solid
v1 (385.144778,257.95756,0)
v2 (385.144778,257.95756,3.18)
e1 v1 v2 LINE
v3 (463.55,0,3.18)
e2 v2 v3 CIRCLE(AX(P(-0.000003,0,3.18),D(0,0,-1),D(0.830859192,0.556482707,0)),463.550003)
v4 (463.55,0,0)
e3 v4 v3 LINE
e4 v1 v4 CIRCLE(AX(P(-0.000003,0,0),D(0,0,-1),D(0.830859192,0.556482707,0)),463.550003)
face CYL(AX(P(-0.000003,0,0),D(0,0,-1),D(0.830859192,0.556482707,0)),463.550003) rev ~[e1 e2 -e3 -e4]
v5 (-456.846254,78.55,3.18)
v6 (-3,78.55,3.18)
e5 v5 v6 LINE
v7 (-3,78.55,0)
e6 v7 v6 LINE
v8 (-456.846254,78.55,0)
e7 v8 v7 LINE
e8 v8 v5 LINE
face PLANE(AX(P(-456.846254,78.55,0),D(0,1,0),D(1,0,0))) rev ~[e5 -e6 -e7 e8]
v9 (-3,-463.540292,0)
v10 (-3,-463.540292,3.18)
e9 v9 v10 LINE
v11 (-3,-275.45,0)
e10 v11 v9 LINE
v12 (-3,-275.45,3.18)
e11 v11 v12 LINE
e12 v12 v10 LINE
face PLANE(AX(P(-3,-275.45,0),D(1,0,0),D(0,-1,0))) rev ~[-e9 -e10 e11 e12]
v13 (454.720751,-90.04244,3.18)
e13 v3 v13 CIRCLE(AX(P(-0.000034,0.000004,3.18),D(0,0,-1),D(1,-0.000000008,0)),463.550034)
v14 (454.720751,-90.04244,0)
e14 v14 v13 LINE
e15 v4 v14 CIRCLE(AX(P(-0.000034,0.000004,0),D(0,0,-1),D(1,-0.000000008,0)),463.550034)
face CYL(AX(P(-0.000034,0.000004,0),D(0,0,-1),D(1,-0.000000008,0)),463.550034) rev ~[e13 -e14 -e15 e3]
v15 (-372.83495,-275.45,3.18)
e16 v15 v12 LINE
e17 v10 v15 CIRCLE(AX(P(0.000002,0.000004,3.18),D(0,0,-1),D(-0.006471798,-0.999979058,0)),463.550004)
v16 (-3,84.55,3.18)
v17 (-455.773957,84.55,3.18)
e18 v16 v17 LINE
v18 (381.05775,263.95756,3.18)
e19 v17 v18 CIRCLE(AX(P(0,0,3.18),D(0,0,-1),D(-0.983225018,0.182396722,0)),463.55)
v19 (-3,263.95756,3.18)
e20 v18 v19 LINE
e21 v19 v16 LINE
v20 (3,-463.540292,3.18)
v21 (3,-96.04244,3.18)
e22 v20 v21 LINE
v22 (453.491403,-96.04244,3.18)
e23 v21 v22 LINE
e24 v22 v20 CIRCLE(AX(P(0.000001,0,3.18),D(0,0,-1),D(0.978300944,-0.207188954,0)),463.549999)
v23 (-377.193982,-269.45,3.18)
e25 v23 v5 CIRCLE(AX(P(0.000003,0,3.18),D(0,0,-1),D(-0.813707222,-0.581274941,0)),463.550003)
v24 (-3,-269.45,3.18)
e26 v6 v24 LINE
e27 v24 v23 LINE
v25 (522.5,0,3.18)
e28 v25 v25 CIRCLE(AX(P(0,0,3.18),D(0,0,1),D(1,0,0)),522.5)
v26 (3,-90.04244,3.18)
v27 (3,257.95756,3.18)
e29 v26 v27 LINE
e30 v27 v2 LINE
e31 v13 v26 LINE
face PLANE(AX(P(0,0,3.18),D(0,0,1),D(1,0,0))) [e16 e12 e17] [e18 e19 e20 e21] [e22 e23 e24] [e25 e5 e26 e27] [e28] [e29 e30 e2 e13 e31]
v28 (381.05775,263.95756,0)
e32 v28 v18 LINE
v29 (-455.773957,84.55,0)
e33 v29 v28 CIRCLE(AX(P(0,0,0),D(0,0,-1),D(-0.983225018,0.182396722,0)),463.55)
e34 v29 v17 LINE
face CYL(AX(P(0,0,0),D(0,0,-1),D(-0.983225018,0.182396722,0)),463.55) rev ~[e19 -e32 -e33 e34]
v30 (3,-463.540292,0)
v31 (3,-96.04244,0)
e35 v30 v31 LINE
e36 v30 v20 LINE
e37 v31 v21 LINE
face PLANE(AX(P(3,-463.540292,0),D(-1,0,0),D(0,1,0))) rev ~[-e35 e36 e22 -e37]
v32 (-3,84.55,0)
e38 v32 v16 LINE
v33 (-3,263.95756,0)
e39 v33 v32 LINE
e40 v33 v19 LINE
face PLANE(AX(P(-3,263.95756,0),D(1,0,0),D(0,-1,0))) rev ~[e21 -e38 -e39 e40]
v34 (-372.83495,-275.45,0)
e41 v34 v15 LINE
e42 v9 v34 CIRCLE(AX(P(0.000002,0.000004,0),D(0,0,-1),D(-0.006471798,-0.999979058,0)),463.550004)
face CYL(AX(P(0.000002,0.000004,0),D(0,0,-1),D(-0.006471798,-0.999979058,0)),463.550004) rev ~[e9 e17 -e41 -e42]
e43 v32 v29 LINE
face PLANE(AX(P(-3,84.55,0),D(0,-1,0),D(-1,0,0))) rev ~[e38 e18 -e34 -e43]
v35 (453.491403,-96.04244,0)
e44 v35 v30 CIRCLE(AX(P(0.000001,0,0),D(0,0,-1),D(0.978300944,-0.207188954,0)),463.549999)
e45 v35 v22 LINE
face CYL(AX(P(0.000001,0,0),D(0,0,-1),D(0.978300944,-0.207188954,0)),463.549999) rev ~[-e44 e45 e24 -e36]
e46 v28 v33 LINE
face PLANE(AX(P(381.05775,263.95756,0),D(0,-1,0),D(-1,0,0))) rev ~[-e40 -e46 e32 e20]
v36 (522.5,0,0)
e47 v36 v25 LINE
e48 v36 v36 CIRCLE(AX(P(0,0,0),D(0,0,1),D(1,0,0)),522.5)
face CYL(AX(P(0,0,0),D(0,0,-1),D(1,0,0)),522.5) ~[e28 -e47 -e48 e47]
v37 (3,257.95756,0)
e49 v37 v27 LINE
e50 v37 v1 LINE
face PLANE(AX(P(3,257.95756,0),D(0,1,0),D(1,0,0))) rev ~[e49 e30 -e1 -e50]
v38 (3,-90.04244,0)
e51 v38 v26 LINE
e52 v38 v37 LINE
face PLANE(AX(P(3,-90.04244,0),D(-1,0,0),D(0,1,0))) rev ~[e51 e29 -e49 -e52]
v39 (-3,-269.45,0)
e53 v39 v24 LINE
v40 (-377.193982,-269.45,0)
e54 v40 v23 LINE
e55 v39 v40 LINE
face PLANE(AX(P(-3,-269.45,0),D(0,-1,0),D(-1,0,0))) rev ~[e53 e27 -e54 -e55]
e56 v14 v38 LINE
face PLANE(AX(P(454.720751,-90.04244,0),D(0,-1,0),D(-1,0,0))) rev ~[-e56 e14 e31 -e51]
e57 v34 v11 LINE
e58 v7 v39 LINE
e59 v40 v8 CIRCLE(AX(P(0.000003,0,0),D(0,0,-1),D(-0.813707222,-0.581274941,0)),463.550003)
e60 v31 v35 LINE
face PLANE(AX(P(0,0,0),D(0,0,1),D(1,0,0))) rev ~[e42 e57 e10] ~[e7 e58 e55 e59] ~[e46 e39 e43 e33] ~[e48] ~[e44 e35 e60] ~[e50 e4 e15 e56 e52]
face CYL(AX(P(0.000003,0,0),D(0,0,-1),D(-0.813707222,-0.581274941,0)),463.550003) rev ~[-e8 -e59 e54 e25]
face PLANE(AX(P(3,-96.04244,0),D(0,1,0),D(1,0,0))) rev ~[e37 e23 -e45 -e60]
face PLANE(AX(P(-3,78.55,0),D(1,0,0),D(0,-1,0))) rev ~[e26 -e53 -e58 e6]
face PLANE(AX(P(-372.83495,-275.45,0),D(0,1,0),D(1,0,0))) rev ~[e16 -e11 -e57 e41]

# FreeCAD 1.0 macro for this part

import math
import FreeCAD as App
import Part
import Sketcher
Q = App.Units.Quantity

doc = App.newDocument("Part")
params = doc.addObject("Spreadsheet::Sheet", "Params")
for row, (alias, value) in enumerate([
    ("sketch1_radius", "18.2500001 in"),
    ("sketch1_radius2", "18.25 in"),
    ("sketch1_radius3", "18.2500002 in"),
    ("sketch1_radius4", "18.2500001 in"),
    ("sketch1_radius5", "18.25 in"),
    ("pad1_length", "3.18 mm"),
], start=1):
    params.set(f"A{row}", alias)
    params.set(f"B{row}", "=" + value)
    params.setAlias(f"B{row}", alias)

body = doc.addObject("PartDesign::Body", "Body")

# Sketch on XY plane
sketch1 = doc.addObject("Sketcher::SketchObject", "Sketch")
body.addObject(sketch1)
sketch1.AttachmentSupport = (doc.XY_Plane, [""])
sketch1.MapMode = "FlatFace"
sketch1.addGeometry(Part.Circle(App.Vector(0, 0, 0), App.Vector(0, 0, 1), 522.5), False)
sketch1.addGeometry(Part.ArcOfCircle(Part.Circle(App.Vector(-0.000003, 0, 0), App.Vector(0, 0, 1), 463.550003), math.radians(0), math.radians(33.812901)), False)
sketch1.addGeometry(Part.ArcOfCircle(Part.Circle(App.Vector(-0.000034, 0.000004, 0), App.Vector(0, 0, 1), 463.550034), math.radians(-11.200643), math.radians(0)), False)
sketch1.addGeometry(Part.LineSegment(App.Vector(454.720751, -90.04244, 0), App.Vector(3, -90.04244, 0)), False)
sketch1.addGeometry(Part.LineSegment(App.Vector(3, -90.04244, 0), App.Vector(3, 257.95756, 0)), False)
sketch1.addGeometry(Part.LineSegment(App.Vector(3, 257.95756, 0), App.Vector(385.144778, 257.95756, 0)), False)
sketch1.addGeometry(Part.ArcOfCircle(Part.Circle(App.Vector(0.000001, 0, 0), App.Vector(0, 0, 1), 463.549999), math.radians(-89.629191), math.radians(-11.957668)), False)
sketch1.addGeometry(Part.LineSegment(App.Vector(3, -463.540292, 0), App.Vector(3, -96.04244, 0)), False)
sketch1.addGeometry(Part.LineSegment(App.Vector(3, -96.04244, 0), App.Vector(453.491403, -96.04244, 0)), False)
sketch1.addGeometry(Part.ArcOfCircle(Part.Circle(App.Vector(0.000002, 0.000004, 0), App.Vector(0, 0, 1), 463.550004), math.radians(-143.543057), math.radians(-90.370809)), False)
sketch1.addGeometry(Part.LineSegment(App.Vector(-372.83495, -275.45, 0), App.Vector(-3, -275.45, 0)), False)
sketch1.addGeometry(Part.LineSegment(App.Vector(-3, -275.45, 0), App.Vector(-3, -463.540292, 0)), False)
sketch1.addGeometry(Part.ArcOfCircle(Part.Circle(App.Vector(0.000003, 0, 0), App.Vector(0, 0, 1), 463.550003), math.radians(170.243975), math.radians(215.540265)), False)
sketch1.addGeometry(Part.LineSegment(App.Vector(-456.846254, 78.55, 0), App.Vector(-3, 78.55, 0)), False)
sketch1.addGeometry(Part.LineSegment(App.Vector(-3, 78.55, 0), App.Vector(-3, -269.45, 0)), False)
sketch1.addGeometry(Part.LineSegment(App.Vector(-3, -269.45, 0), App.Vector(-377.193982, -269.45, 0)), False)
sketch1.addGeometry(Part.LineSegment(App.Vector(-3, 84.55, 0), App.Vector(-455.773957, 84.55, 0)), False)
sketch1.addGeometry(Part.ArcOfCircle(Part.Circle(App.Vector(0, 0, 0), App.Vector(0, 0, 1), 463.55), math.radians(34.710229), math.radians(169.490607)), False)
sketch1.addGeometry(Part.LineSegment(App.Vector(381.05775, 263.95756, 0), App.Vector(-3, 263.95756, 0)), False)
sketch1.addGeometry(Part.LineSegment(App.Vector(-3, 263.95756, 0), App.Vector(-3, 84.55, 0)), False)
sketch1.addConstraint(Sketcher.Constraint("Coincident", 1, 1, 2, 2))
sketch1.addConstraint(Sketcher.Constraint("Coincident", 2, 1, 3, 1))
sketch1.addConstraint(Sketcher.Constraint("Coincident", 3, 2, 4, 1))
sketch1.addConstraint(Sketcher.Constraint("Coincident", 4, 2, 5, 1))
sketch1.addConstraint(Sketcher.Constraint("Coincident", 5, 2, 1, 2))
sketch1.addConstraint(Sketcher.Constraint("Coincident", 6, 1, 7, 1))
sketch1.addConstraint(Sketcher.Constraint("Coincident", 7, 2, 8, 1))
sketch1.addConstraint(Sketcher.Constraint("Coincident", 8, 2, 6, 2))
sketch1.addConstraint(Sketcher.Constraint("Coincident", 9, 1, 10, 1))
sketch1.addConstraint(Sketcher.Constraint("Coincident", 10, 2, 11, 1))
sketch1.addConstraint(Sketcher.Constraint("Coincident", 11, 2, 9, 2))
sketch1.addConstraint(Sketcher.Constraint("Coincident", 12, 1, 13, 1))
sketch1.addConstraint(Sketcher.Constraint("Coincident", 13, 2, 14, 1))
sketch1.addConstraint(Sketcher.Constraint("Coincident", 14, 2, 15, 1))
sketch1.addConstraint(Sketcher.Constraint("Coincident", 15, 2, 12, 2))
sketch1.addConstraint(Sketcher.Constraint("Coincident", 16, 2, 17, 2))
sketch1.addConstraint(Sketcher.Constraint("Coincident", 17, 1, 18, 1))
sketch1.addConstraint(Sketcher.Constraint("Coincident", 18, 2, 19, 1))
sketch1.addConstraint(Sketcher.Constraint("Coincident", 19, 2, 16, 1))
sketch1.addConstraint(Sketcher.Constraint("Horizontal", 3))
sketch1.addConstraint(Sketcher.Constraint("Vertical", 4))
sketch1.addConstraint(Sketcher.Constraint("Horizontal", 5))
sketch1.addConstraint(Sketcher.Constraint("Vertical", 7))
sketch1.addConstraint(Sketcher.Constraint("Horizontal", 8))
sketch1.addConstraint(Sketcher.Constraint("Horizontal", 10))
sketch1.addConstraint(Sketcher.Constraint("Vertical", 11))
sketch1.addConstraint(Sketcher.Constraint("Horizontal", 13))
sketch1.addConstraint(Sketcher.Constraint("Vertical", 14))
sketch1.addConstraint(Sketcher.Constraint("Horizontal", 15))
sketch1.addConstraint(Sketcher.Constraint("Horizontal", 16))
sketch1.addConstraint(Sketcher.Constraint("Horizontal", 18))
sketch1.addConstraint(Sketcher.Constraint("Vertical", 19))
sketch1.addConstraint(Sketcher.Constraint("Coincident", 0, 3, -1, 1))
sketch1.addConstraint(Sketcher.Constraint("Coincident", 1, 3, -1, 1))
sketch1.addConstraint(Sketcher.Constraint("Coincident", 6, 3, -1, 1))
sketch1.addConstraint(Sketcher.Constraint("Coincident", 9, 3, -1, 1))
sketch1.addConstraint(Sketcher.Constraint("Coincident", 12, 3, -1, 1))
sketch1.addConstraint(Sketcher.Constraint("Coincident", 17, 3, -1, 1))
sketch1.addConstraint(Sketcher.Constraint("PointOnObject", 1, 1, -1))
sketch1.addConstraint(Sketcher.Constraint("Radius", 1, Q("18.2500001 in")))
sketch1.addConstraint(Sketcher.Constraint("Radius", 6, Q("18.25 in")))
sketch1.addConstraint(Sketcher.Constraint("Radius", 9, Q("18.2500002 in")))
sketch1.addConstraint(Sketcher.Constraint("Radius", 12, Q("18.2500001 in")))
sketch1.addConstraint(Sketcher.Constraint("Radius", 17, Q("18.25 in")))
sketch1.addConstraint(Sketcher.Constraint("Diameter", 0, Q("1045 mm")))
sketch1.addConstraint(Sketcher.Constraint("DistanceY", 4, 1, 4, 2, Q("348 mm")))
sketch1.addConstraint(Sketcher.Constraint("DistanceY", 14, 2, 14, 1, Q("348 mm")))
sketch1.addConstraint(Sketcher.Constraint("Radius", 2, Q("463.550034 mm")))
sketch1.addConstraint(Sketcher.Constraint("DistanceX", 16, 2, 15, 2, Q("3.0936998 in")))
sketch1.addConstraint(Sketcher.Constraint("DistanceX", 3, 2, 3, 1, Q("451.720751 mm")))
sketch1.addConstraint(Sketcher.Constraint("DistanceX", 10, 1, 10, 2, Q("369.83495 mm")))
sketch1.addConstraint(Sketcher.Constraint("DistanceX", 15, 2, 15, 1, Q("374.193982 mm")))
sketch1.addConstraint(Sketcher.Constraint("DistanceX", 18, 2, 18, 1, Q("384.05775 mm")))
sketch1.addConstraint(Sketcher.Constraint("DistanceY", 7, 1, 7, 2, Q("367.497852 mm")))
sketch1.addConstraint(Sketcher.Constraint("DistanceY", 19, 2, 19, 1, Q("179.40756 mm")))
sketch1.addConstraint(Sketcher.Constraint("DistanceX", -1, 1, 3, 2, Q("3 mm")))
sketch1.addConstraint(Sketcher.Constraint("DistanceX", -1, 1, 7, 2, Q("3 mm")))
sketch1.addConstraint(Sketcher.Constraint("DistanceX", 10, 2, -1, 1, Q("3 mm")))
sketch1.addConstraint(Sketcher.Constraint("DistanceX", 13, 2, -1, 1, Q("3 mm")))
sketch1.addConstraint(Sketcher.Constraint("DistanceY", 7, 2, 3, 2, Q("6 mm")))
sketch1.setExpression("Constraints[39]", "Params.sketch1_radius")
sketch1.setExpression("Constraints[40]", "Params.sketch1_radius2")
sketch1.setExpression("Constraints[41]", "Params.sketch1_radius3")
sketch1.setExpression("Constraints[42]", "Params.sketch1_radius4")
sketch1.setExpression("Constraints[43]", "Params.sketch1_radius5")
pad1 = doc.addObject("PartDesign::Pad", "Pad")
body.addObject(pad1)
pad1.Profile = sketch1
pad1.setExpression("Length", "Params.pad1_length")

doc.recompute()
